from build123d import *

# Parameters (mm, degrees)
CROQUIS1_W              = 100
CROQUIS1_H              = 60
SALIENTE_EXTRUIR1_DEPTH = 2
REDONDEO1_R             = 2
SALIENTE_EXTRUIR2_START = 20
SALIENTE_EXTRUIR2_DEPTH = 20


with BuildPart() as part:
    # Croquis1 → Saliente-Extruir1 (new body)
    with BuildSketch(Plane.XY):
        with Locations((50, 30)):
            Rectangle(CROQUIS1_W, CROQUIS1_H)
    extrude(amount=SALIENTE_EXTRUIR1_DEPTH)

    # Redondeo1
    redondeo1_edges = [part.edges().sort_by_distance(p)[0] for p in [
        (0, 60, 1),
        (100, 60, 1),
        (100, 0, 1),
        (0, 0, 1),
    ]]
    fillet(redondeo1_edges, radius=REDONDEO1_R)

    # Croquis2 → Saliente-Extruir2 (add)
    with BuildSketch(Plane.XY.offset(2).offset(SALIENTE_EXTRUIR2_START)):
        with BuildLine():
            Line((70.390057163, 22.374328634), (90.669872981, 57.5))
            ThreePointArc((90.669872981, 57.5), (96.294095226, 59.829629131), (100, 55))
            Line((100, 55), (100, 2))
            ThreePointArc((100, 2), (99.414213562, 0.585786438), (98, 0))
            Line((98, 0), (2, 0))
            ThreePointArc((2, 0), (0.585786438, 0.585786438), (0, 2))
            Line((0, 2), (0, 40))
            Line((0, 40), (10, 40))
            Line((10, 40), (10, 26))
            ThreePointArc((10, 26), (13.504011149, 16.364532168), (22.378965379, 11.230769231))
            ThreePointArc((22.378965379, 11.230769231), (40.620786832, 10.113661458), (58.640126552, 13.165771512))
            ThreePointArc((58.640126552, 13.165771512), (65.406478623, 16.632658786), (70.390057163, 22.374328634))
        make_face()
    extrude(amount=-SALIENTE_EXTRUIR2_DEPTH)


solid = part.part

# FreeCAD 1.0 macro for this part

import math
import FreeCAD as App
import Part
import Sketcher
Q = App.Units.Quantity


def edges_at(feature, points):
    """Names of the edges that pass closest to the given points."""
    edges = feature.Shape.Edges
    near = lambda p: min(range(len(edges)), key=lambda i: edges[i].distToShape(Part.Vertex(*p))[0])
    return sorted({f"Edge{near(p) + 1}" for p in points})


def add_polygon(sketch, points):
    """Adds a closed chain of lines whose ends are joined by coincident constraints."""
    first, n = sketch.GeometryCount, len(points)
    for a, b in zip(points, points[1:] + points[:1]):
        sketch.addGeometry(Part.LineSegment(App.Vector(*a, 0), App.Vector(*b, 0)), False)
    for i in range(n):
        sketch.addConstraint(Sketcher.Constraint("Coincident", first + i, 2, first + (i + 1) % n, 1))

doc = App.newDocument("Part")
body = doc.addObject("PartDesign::Body", "Body")

# Sketch on XY plane
sketch1 = body.newObject("Sketcher::SketchObject", "Sketch")
sketch1.AttachmentSupport = (doc.getObject("XY_Plane"), [""])
sketch1.MapMode = "FlatFace"
add_polygon(sketch1, [(0, 60), (0, 0), (100, 0), (100, 60)])  # lines 0-3
sketch1.addConstraint([
    Sketcher.Constraint("Vertical", 0),
    Sketcher.Constraint("Horizontal", 1),
    Sketcher.Constraint("Vertical", 2),
    Sketcher.Constraint("Horizontal", 3),
    Sketcher.Constraint("Coincident", 0, 2, -1, 1),
    Sketcher.Constraint("DistanceX", 1, 1, 1, 2, Q("100 mm")),
    Sketcher.Constraint("DistanceY", 0, 2, 0, 1, Q("60 mm")),
])
pad1 = body.newObject("PartDesign::Pad", "Pad")
pad1.Profile = sketch1
pad1.Length = 2
doc.recompute()

fillet = body.newObject("PartDesign::Fillet", "Fillet")
fillet.Base = (pad1, edges_at(pad1, [
    (0, 60, 1),
    (100, 60, 1),
    (100, 0, 1),
    (0, 0, 1),
]))
fillet.Radius = 2

# Sketch on XY plane
sketch2 = body.newObject("Sketcher::SketchObject", "Sketch001")
sketch2.AttachmentSupport = (doc.getObject("XY_Plane"), [""])
sketch2.MapMode = "FlatFace"
sketch2.AttachmentOffset = App.Placement(App.Vector(0, 0, 22), App.Rotation())
sketch2.addGeometry([
    Part.LineSegment(App.Vector(90.7, 57.5, 0), App.Vector(70.4, 22.4, 0)),  # 0
    Part.ArcOfCircle(Part.Circle(App.Vector(53.1, 32.4, 0), App.Vector(0, 0, 1), 20), math.radians(-74), math.radians(-30)),  # 1
    Part.ArcOfCircle(Part.Circle(App.Vector(36.4, 90, 0), App.Vector(0, 0, 1), 80), math.radians(-100), math.radians(-74)),  # 2
    Part.ArcOfCircle(Part.Circle(App.Vector(25, 26, 0), App.Vector(0, 0, 1), 15), math.radians(180), math.radians(260)),  # 3
    Part.LineSegment(App.Vector(10, 26, 0), App.Vector(10, 40, 0)),  # 4
    Part.LineSegment(App.Vector(10, 40, 0), App.Vector(0, 40, 0)),  # 5
    Part.LineSegment(App.Vector(0, 40, 0), App.Vector(0, 2, 0)),  # 6
    Part.ArcOfCircle(Part.Circle(App.Vector(2, 2, 0), App.Vector(0, 0, 1), 2), math.radians(-180), math.radians(-90)),  # 7
    Part.LineSegment(App.Vector(2, 0, 0), App.Vector(98, 0, 0)),  # 8
    Part.ArcOfCircle(Part.Circle(App.Vector(98, 2, 0), App.Vector(0, 0, 1), 2), math.radians(-90), math.radians(0)),  # 9
    Part.LineSegment(App.Vector(100, 2, 0), App.Vector(100, 55, 0)),  # 10
    Part.ArcOfCircle(Part.Circle(App.Vector(95, 55, 0), App.Vector(0, 0, 1), 5), math.radians(0), math.radians(150)),  # 11
], False)
sketch2.addConstraint([
    Sketcher.Constraint("Tangent", 0, 2, 1, 2),
    Sketcher.Constraint("Tangent", 1, 1, 2, 2),
    Sketcher.Constraint("Tangent", 2, 1, 3, 2),
    Sketcher.Constraint("Tangent", 3, 1, 4, 1),
    Sketcher.Constraint("Coincident", 4, 2, 5, 1),
    Sketcher.Constraint("Coincident", 5, 2, 6, 1),
    Sketcher.Constraint("Tangent", 6, 2, 7, 1),
    Sketcher.Constraint("Tangent", 7, 2, 8, 1),
    Sketcher.Constraint("Tangent", 8, 2, 9, 1),
    Sketcher.Constraint("Tangent", 9, 2, 10, 1),
    Sketcher.Constraint("Tangent", 10, 2, 11, 1),
    Sketcher.Constraint("Tangent", 11, 2, 0, 1),
    Sketcher.Constraint("Vertical", 4),
    Sketcher.Constraint("Horizontal", 5),
    Sketcher.Constraint("Vertical", 6),
    Sketcher.Constraint("Horizontal", 8),
    Sketcher.Constraint("Vertical", 10),
    Sketcher.Constraint("Equal", 7, 9),
    Sketcher.Constraint("PointOnObject", 5, 2, -2),
    Sketcher.Constraint("PointOnObject", 7, 2, -1),
    Sketcher.Constraint("Radius", 1, Q("20 mm")),
    Sketcher.Constraint("Radius", 2, Q("80 mm")),
    Sketcher.Constraint("Radius", 3, Q("15 mm")),
    Sketcher.Constraint("Radius", 7, Q("2 mm")),
    Sketcher.Constraint("Radius", 11, Q("5 mm")),
    Sketcher.Constraint("DistanceX", 5, 2, 5, 1, Q("10 mm")),
    Sketcher.Constraint("DistanceX", 8, 1, 8, 2, Q("96 mm")),
    Sketcher.Constraint("DistanceY", 4, 1, 4, 2, Q("14 mm")),
    Sketcher.Constraint("DistanceY", 6, 2, 6, 1, Q("38 mm")),
    Sketcher.Constraint("DistanceY", 10, 1, 10, 2, Q("53 mm")),
    Sketcher.Constraint("Angle", 0, Q("-120 deg")),
    Sketcher.Constraint("DistanceY", -1, 1, 2, 3, Q("90 mm")),
])
pad2 = body.newObject("PartDesign::Pad", "Pad001")
pad2.Profile = sketch2
pad2.Length = 20
pad2.Reversed = True

doc.recompute()
